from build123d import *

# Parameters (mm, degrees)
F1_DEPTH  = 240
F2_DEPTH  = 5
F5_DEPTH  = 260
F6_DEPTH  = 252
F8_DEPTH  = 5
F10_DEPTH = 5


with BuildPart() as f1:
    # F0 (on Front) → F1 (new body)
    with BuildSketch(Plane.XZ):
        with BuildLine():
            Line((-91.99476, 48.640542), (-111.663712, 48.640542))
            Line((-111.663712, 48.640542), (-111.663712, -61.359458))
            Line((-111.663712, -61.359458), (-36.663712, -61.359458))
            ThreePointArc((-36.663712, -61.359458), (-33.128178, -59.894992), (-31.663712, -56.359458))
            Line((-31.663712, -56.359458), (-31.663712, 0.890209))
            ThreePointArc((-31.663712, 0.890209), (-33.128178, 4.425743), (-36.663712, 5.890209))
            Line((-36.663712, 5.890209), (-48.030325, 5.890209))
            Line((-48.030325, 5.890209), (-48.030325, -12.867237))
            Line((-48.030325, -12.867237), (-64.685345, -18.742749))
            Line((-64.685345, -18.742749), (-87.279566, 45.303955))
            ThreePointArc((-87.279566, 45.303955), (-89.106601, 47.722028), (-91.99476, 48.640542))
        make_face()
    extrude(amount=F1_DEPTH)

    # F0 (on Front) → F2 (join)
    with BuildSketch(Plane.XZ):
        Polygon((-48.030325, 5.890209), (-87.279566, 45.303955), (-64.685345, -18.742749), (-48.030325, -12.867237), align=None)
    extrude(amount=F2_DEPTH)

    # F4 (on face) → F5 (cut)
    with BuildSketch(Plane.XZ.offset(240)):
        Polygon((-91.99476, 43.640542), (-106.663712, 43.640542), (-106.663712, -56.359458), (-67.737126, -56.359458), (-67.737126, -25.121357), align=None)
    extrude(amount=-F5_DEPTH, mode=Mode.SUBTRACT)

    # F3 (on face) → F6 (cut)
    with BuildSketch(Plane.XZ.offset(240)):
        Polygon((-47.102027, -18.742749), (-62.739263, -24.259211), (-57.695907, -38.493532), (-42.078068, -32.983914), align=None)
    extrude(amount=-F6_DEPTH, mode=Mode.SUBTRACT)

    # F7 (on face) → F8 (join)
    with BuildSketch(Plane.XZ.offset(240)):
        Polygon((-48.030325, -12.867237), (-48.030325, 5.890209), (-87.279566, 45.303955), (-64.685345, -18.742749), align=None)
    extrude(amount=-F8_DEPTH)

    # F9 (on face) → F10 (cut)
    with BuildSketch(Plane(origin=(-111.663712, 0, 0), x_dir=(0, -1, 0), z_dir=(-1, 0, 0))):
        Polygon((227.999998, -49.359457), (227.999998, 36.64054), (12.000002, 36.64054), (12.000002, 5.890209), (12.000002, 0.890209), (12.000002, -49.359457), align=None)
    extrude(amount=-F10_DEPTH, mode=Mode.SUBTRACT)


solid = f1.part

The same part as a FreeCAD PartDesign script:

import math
import FreeCAD as App
import Part
import Sketcher

doc = App.newDocument("Part")
body = doc.addObject("PartDesign::Body", "Body")

# Sketch on XZ plane
sketch1 = doc.addObject("Sketcher::SketchObject", "Sketch")
body.addObject(sketch1)
sketch1.AttachmentSupport = (doc.XZ_Plane, [""])
sketch1.MapMode = "FlatFace"
sketch1.addGeometry(Part.LineSegment(App.Vector(-92, 48.6, 0), App.Vector(-111.7, 48.6, 0)), False)
sketch1.addGeometry(Part.LineSegment(App.Vector(-111.7, 48.6, 0), App.Vector(-111.7, -61.4, 0)), False)
sketch1.addGeometry(Part.LineSegment(App.Vector(-111.7, -61.4, 0), App.Vector(-36.7, -61.4, 0)), False)
sketch1.addGeometry(Part.ArcOfCircle(Part.Circle(App.Vector(-36.7, -56.4, 0), App.Vector(0, 0, 1), 5), math.radians(-90), math.radians(0)), False)
sketch1.addGeometry(Part.LineSegment(App.Vector(-31.7, -56.4, 0), App.Vector(-31.7, 0.9, 0)), False)
sketch1.addGeometry(Part.ArcOfCircle(Part.Circle(App.Vector(-36.7, 0.9, 0), App.Vector(0, 0, 1), 5), math.radians(0), math.radians(90)), False)
sketch1.addGeometry(Part.LineSegment(App.Vector(-36.7, 5.9, 0), App.Vector(-48, 5.9, 0)), False)
sketch1.addGeometry(Part.LineSegment(App.Vector(-48, 5.9, 0), App.Vector(-48, -12.9, 0)), False)
sketch1.addGeometry(Part.LineSegment(App.Vector(-48, -12.9, 0), App.Vector(-64.7, -18.7, 0)), False)
sketch1.addGeometry(Part.LineSegment(App.Vector(-64.7, -18.7, 0), App.Vector(-87.3, 45.3, 0)), False)
sketch1.addGeometry(Part.ArcOfCircle(Part.Circle(App.Vector(-92, 43.6, 0), App.Vector(0, 0, 1), 5), math.radians(19), math.radians(90)), False)
sketch1.addConstraint(Sketcher.Constraint("Coincident", 0, 2, 1, 1))
sketch1.addConstraint(Sketcher.Constraint("Coincident", 1, 2, 2, 1))
sketch1.addConstraint(Sketcher.Constraint("Tangent", 2, 2, 3, 1))
sketch1.addConstraint(Sketcher.Constraint("Tangent", 3, 2, 4, 1))
sketch1.addConstraint(Sketcher.Constraint("Tangent", 4, 2, 5, 1))
sketch1.addConstraint(Sketcher.Constraint("Tangent", 5, 2, 6, 1))
sketch1.addConstraint(Sketcher.Constraint("Coincident", 6, 2, 7, 1))
sketch1.addConstraint(Sketcher.Constraint("Coincident", 7, 2, 8, 1))
sketch1.addConstraint(Sketcher.Constraint("Coincident", 8, 2, 9, 1))
sketch1.addConstraint(Sketcher.Constraint("Tangent", 9, 2, 10, 1))
sketch1.addConstraint(Sketcher.Constraint("Tangent", 10, 2, 0, 1))
sketch1.addConstraint(Sketcher.Constraint("Horizontal", 0))
sketch1.addConstraint(Sketcher.Constraint("Vertical", 1))
sketch1.addConstraint(Sketcher.Constraint("Horizontal", 2))
sketch1.addConstraint(Sketcher.Constraint("Vertical", 4))
sketch1.addConstraint(Sketcher.Constraint("Horizontal", 6))
sketch1.addConstraint(Sketcher.Constraint("Vertical", 7))
sketch1.addConstraint(Sketcher.Constraint("Equal", 3, 5))
sketch1.addConstraint(Sketcher.Constraint("Perpendicular", 8, 9))
sketch1.addConstraint(Sketcher.Constraint("Radius", 3, 5.0))
sketch1.addConstraint(Sketcher.Constraint("DistanceX", 2, 1, 2, 2, 75.0))
sketch1.addConstraint(Sketcher.Constraint("DistanceY", 1, 2, 1, 1, 110.0))
sketch1.addConstraint(Sketcher.Constraint("Radius", 10, 5.000004))
sketch1.addConstraint(Sketcher.Constraint("Distance", 8, 17.661012))
sketch1.addConstraint(Sketcher.Constraint("DistanceX", 0, 2, 0, 1, 19.668952))
sketch1.addConstraint(Sketcher.Constraint("DistanceX", 6, 2, 6, 1, 11.366613))
sketch1.addConstraint(Sketcher.Constraint("DistanceY", 4, 1, 4, 2, 57.249667))
sketch1.addConstraint(Sketcher.Constraint("DistanceY", 7, 2, 7, 1, 18.757446))
sketch1.addConstraint(Sketcher.Constraint("DistanceX", 3, 3, -1, 1, 36.663712))
sketch1.addConstraint(Sketcher.Constraint("DistanceY", 3, 3, -1, 1, 56.359458))
pad1 = doc.addObject("PartDesign::Pad", "Pad")
body.addObject(pad1)
pad1.Profile = sketch1
pad1.Length = 240

# Sketch on XZ plane
sketch2 = doc.addObject("Sketcher::SketchObject", "Sketch001")
body.addObject(sketch2)
sketch2.AttachmentSupport = (doc.XZ_Plane, [""])
sketch2.MapMode = "FlatFace"
sketch2.addGeometry(Part.LineSegment(App.Vector(-48, 6, 0), App.Vector(-87, 45, 0)), False)
sketch2.addGeometry(Part.LineSegment(App.Vector(-87, 45, 0), App.Vector(-65, -19, 0)), False)
sketch2.addGeometry(Part.LineSegment(App.Vector(-65, -19, 0), App.Vector(-48, -13, 0)), False)
sketch2.addGeometry(Part.LineSegment(App.Vector(-48, -13, 0), App.Vector(-48, 6, 0)), False)
sketch2.addConstraint(Sketcher.Constraint("Coincident", 0, 2, 1, 1))
sketch2.addConstraint(Sketcher.Constraint("Coincident", 1, 2, 2, 1))
sketch2.addConstraint(Sketcher.Constraint("Coincident", 2, 2, 3, 1))
sketch2.addConstraint(Sketcher.Constraint("Coincident", 3, 2, 0, 1))
sketch2.addConstraint(Sketcher.Constraint("Vertical", 3))
sketch2.addConstraint(Sketcher.Constraint("Perpendicular", 1, 2))
sketch2.addConstraint(Sketcher.Constraint("Distance", 2, 17.661012))
sketch2.addConstraint(Sketcher.Constraint("DistanceY", 3, 1, 3, 2, 18.757446))
sketch2.addConstraint(Sketcher.Constraint("DistanceY", 1, 2, -1, 1, 18.742749))
sketch2.addConstraint(Sketcher.Constraint("DistanceY", -1, 1, 3, 2, 5.890209))
sketch2.addConstraint(Sketcher.Constraint("DistanceX", 0, 2, 1, 2, 22.594221))
sketch2.addConstraint(Sketcher.Constraint("DistanceX", 0, 2, -1, 1, 87.279566))
pad2 = doc.addObject("PartDesign::Pad", "Pad001")
body.addObject(pad2)
pad2.Profile = sketch2
pad2.Length = 5

# Sketch on XZ plane
sketch3 = doc.addObject("Sketcher::SketchObject", "Sketch002")
body.addObject(sketch3)
sketch3.AttachmentSupport = (doc.XZ_Plane, [""])
sketch3.MapMode = "FlatFace"
sketch3.AttachmentOffset = App.Placement(App.Vector(0, 0, 240), App.Rotation())
sketch3.addGeometry(Part.LineSegment(App.Vector(-92, 44, 0), App.Vector(-107, 44, 0)), False)
sketch3.addGeometry(Part.LineSegment(App.Vector(-107, 44, 0), App.Vector(-107, -56, 0)), False)
sketch3.addGeometry(Part.LineSegment(App.Vector(-107, -56, 0), App.Vector(-68, -56, 0)), False)
sketch3.addGeometry(Part.LineSegment(App.Vector(-68, -56, 0), App.Vector(-68, -25, 0)), False)
sketch3.addGeometry(Part.LineSegment(App.Vector(-68, -25, 0), App.Vector(-92, 44, 0)), False)
sketch3.addConstraint(Sketcher.Constraint("Coincident", 0, 2, 1, 1))
sketch3.addConstraint(Sketcher.Constraint("Coincident", 1, 2, 2, 1))
sketch3.addConstraint(Sketcher.Constraint("Coincident", 2, 2, 3, 1))
sketch3.addConstraint(Sketcher.Constraint("Coincident", 3, 2, 4, 1))
sketch3.addConstraint(Sketcher.Constraint("Coincident", 4, 2, 0, 1))
sketch3.addConstraint(Sketcher.Constraint("Horizontal", 0))
sketch3.addConstraint(Sketcher.Constraint("Vertical", 1))
sketch3.addConstraint(Sketcher.Constraint("Horizontal", 2))
sketch3.addConstraint(Sketcher.Constraint("Vertical", 3))
sketch3.addConstraint(Sketcher.Constraint("DistanceY", 1, 2, 1, 1, 100.0))
sketch3.addConstraint(Sketcher.Constraint("DistanceY", 3, 1, 3, 2, 31.238101))
sketch3.addConstraint(Sketcher.Constraint("DistanceX", 0, 2, 0, 1, 14.668952))
sketch3.addConstraint(Sketcher.Constraint("DistanceX", 2, 1, 2, 2, 38.926586))
sketch3.addConstraint(Sketcher.Constraint("DistanceX", 4, 2, -1, 1, 91.99476))
sketch3.addConstraint(Sketcher.Constraint("DistanceY", -1, 1, 0, 2, 43.640542))
pocket1 = doc.addObject("PartDesign::Pocket", "Pocket")
body.addObject(pocket1)
pocket1.Profile = sketch3
pocket1.Length = 260

# Sketch on XZ plane
sketch4 = doc.addObject("Sketcher::SketchObject", "Sketch003")
body.addObject(sketch4)
sketch4.AttachmentSupport = (doc.XZ_Plane, [""])
sketch4.MapMode = "FlatFace"
sketch4.AttachmentOffset = App.Placement(App.Vector(0, 0, 240), App.Rotation())
sketch4.addGeometry(Part.LineSegment(App.Vector(-47, -19, 0), App.Vector(-63, -24, 0)), False)
sketch4.addGeometry(Part.LineSegment(App.Vector(-63, -24, 0), App.Vector(-58, -38, 0)), False)
sketch4.addGeometry(Part.LineSegment(App.Vector(-58, -38, 0), App.Vector(-42, -33, 0)), False)
sketch4.addGeometry(Part.LineSegment(App.Vector(-42, -33, 0), App.Vector(-47, -19, 0)), False)
sketch4.addConstraint(Sketcher.Constraint("Coincident", 0, 2, 1, 1))
sketch4.addConstraint(Sketcher.Constraint("Coincident", 1, 2, 2, 1))
sketch4.addConstraint(Sketcher.Constraint("Coincident", 2, 2, 3, 1))
sketch4.addConstraint(Sketcher.Constraint("Coincident", 3, 2, 0, 1))
sketch4.addConstraint(Sketcher.Constraint("Parallel", 0, 2))
sketch4.addConstraint(Sketcher.Constraint("Perpendicular", 2, 3))
sketch4.addConstraint(Sketcher.Constraint("Distance", 1, 15.101369))
sketch4.addConstraint(Sketcher.Constraint("DistanceY", 0, 2, -1, 1, 24.259211))
sketch4.addConstraint(Sketcher.Constraint("DistanceX", 2, 2, -1, 1, 42.078068))
sketch4.addConstraint(Sketcher.Constraint("DistanceY", 3, 2, -1, 1, 18.742749))
sketch4.addConstraint(Sketcher.Constraint("DistanceY", 1, 2, 0, 2, 14.234321))
sketch4.addConstraint(Sketcher.Constraint("DistanceX", 1, 2, 2, 2, 15.617839))
pocket2 = doc.addObject("PartDesign::Pocket", "Pocket001")
body.addObject(pocket2)
pocket2.Profile = sketch4
pocket2.Length = 252

# Sketch on XZ plane
sketch5 = doc.addObject("Sketcher::SketchObject", "Sketch004")
body.addObject(sketch5)
sketch5.AttachmentSupport = (doc.XZ_Plane, [""])
sketch5.MapMode = "FlatFace"
sketch5.AttachmentOffset = App.Placement(App.Vector(0, 0, 240), App.Rotation())
sketch5.addGeometry(Part.LineSegment(App.Vector(-48, -13, 0), App.Vector(-48, 6, 0)), False)
sketch5.addGeometry(Part.LineSegment(App.Vector(-48, 6, 0), App.Vector(-87, 45, 0)), False)
sketch5.addGeometry(Part.LineSegment(App.Vector(-87, 45, 0), App.Vector(-65, -19, 0)), False)
sketch5.addGeometry(Part.LineSegment(App.Vector(-65, -19, 0), App.Vector(-48, -13, 0)), False)
sketch5.addConstraint(Sketcher.Constraint("Coincident", 0, 2, 1, 1))
sketch5.addConstraint(Sketcher.Constraint("Coincident", 1, 2, 2, 1))
sketch5.addConstraint(Sketcher.Constraint("Coincident", 2, 2, 3, 1))
sketch5.addConstraint(Sketcher.Constraint("Coincident", 3, 2, 0, 1))
sketch5.addConstraint(Sketcher.Constraint("Vertical", 0))
sketch5.addConstraint(Sketcher.Constraint("Perpendicular", 2, 3))
sketch5.addConstraint(Sketcher.Constraint("Distance", 3, 17.661012))
sketch5.addConstraint(Sketcher.Constraint("DistanceY", 0, 1, 0, 2, 18.757446))
sketch5.addConstraint(Sketcher.Constraint("DistanceY", -1, 1, 0, 2, 5.890209))
sketch5.addConstraint(Sketcher.Constraint("DistanceY", 2, 2, -1, 1, 18.742749))
sketch5.addConstraint(Sketcher.Constraint("DistanceX", 1, 2, 0, 2, 39.249241))
sketch5.addConstraint(Sketcher.Constraint("DistanceX", 0, 2, -1, 1, 48.030325))
pad3 = doc.addObject("PartDesign::Pad", "Pad002")
body.addObject(pad3)
pad3.Profile = sketch5
pad3.Length = 5
pad3.Reversed = True

# Sketch on YZ plane
sketch6 = doc.addObject("Sketcher::SketchObject", "Sketch005")
body.addObject(sketch6)
sketch6.AttachmentSupport = (doc.YZ_Plane, [""])
sketch6.MapMode = "FlatFace"
sketch6.AttachmentOffset = App.Placement(App.Vector(0, 0, -111.663712), App.Rotation())
sketch6.addGeometry(Part.LineSegment(App.Vector(-228, -49, 0), App.Vector(-228, 37, 0)), False)
sketch6.addGeometry(Part.LineSegment(App.Vector(-228, 37, 0), App.Vector(-12, 37, 0)), False)
sketch6.addGeometry(Part.LineSegment(App.Vector(-12, 37, 0), App.Vector(-12, -49, 0)), False)
sketch6.addGeometry(Part.LineSegment(App.Vector(-12, -49, 0), App.Vector(-228, -49, 0)), False)
sketch6.addConstraint(Sketcher.Constraint("Coincident", 0, 2, 1, 1))
sketch6.addConstraint(Sketcher.Constraint("Coincident", 1, 2, 2, 1))
sketch6.addConstraint(Sketcher.Constraint("Coincident", 2, 2, 3, 1))
sketch6.addConstraint(Sketcher.Constraint("Coincident", 3, 2, 0, 1))
sketch6.addConstraint(Sketcher.Constraint("Vertical", 0))
sketch6.addConstraint(Sketcher.Constraint("Horizontal", 1))
sketch6.addConstraint(Sketcher.Constraint("Vertical", 2))
sketch6.addConstraint(Sketcher.Constraint("Horizontal", 3))
sketch6.addConstraint(Sketcher.Constraint("DistanceX", 0, 2, -1, 1, 227.999998))
sketch6.addConstraint(Sketcher.Constraint("DistanceX", 1, 1, 1, 2, 215.999996))
sketch6.addConstraint(Sketcher.Constraint("DistanceY", 0, 1, 0, 2, 85.999997))
sketch6.addConstraint(Sketcher.Constraint("DistanceY", -1, 1, 0, 2, 36.64054))
pocket3 = doc.addObject("PartDesign::Pocket", "Pocket002")
body.addObject(pocket3)
pocket3.Profile = sketch6
pocket3.Length = 5
pocket3.Reversed = True

doc.recompute()
